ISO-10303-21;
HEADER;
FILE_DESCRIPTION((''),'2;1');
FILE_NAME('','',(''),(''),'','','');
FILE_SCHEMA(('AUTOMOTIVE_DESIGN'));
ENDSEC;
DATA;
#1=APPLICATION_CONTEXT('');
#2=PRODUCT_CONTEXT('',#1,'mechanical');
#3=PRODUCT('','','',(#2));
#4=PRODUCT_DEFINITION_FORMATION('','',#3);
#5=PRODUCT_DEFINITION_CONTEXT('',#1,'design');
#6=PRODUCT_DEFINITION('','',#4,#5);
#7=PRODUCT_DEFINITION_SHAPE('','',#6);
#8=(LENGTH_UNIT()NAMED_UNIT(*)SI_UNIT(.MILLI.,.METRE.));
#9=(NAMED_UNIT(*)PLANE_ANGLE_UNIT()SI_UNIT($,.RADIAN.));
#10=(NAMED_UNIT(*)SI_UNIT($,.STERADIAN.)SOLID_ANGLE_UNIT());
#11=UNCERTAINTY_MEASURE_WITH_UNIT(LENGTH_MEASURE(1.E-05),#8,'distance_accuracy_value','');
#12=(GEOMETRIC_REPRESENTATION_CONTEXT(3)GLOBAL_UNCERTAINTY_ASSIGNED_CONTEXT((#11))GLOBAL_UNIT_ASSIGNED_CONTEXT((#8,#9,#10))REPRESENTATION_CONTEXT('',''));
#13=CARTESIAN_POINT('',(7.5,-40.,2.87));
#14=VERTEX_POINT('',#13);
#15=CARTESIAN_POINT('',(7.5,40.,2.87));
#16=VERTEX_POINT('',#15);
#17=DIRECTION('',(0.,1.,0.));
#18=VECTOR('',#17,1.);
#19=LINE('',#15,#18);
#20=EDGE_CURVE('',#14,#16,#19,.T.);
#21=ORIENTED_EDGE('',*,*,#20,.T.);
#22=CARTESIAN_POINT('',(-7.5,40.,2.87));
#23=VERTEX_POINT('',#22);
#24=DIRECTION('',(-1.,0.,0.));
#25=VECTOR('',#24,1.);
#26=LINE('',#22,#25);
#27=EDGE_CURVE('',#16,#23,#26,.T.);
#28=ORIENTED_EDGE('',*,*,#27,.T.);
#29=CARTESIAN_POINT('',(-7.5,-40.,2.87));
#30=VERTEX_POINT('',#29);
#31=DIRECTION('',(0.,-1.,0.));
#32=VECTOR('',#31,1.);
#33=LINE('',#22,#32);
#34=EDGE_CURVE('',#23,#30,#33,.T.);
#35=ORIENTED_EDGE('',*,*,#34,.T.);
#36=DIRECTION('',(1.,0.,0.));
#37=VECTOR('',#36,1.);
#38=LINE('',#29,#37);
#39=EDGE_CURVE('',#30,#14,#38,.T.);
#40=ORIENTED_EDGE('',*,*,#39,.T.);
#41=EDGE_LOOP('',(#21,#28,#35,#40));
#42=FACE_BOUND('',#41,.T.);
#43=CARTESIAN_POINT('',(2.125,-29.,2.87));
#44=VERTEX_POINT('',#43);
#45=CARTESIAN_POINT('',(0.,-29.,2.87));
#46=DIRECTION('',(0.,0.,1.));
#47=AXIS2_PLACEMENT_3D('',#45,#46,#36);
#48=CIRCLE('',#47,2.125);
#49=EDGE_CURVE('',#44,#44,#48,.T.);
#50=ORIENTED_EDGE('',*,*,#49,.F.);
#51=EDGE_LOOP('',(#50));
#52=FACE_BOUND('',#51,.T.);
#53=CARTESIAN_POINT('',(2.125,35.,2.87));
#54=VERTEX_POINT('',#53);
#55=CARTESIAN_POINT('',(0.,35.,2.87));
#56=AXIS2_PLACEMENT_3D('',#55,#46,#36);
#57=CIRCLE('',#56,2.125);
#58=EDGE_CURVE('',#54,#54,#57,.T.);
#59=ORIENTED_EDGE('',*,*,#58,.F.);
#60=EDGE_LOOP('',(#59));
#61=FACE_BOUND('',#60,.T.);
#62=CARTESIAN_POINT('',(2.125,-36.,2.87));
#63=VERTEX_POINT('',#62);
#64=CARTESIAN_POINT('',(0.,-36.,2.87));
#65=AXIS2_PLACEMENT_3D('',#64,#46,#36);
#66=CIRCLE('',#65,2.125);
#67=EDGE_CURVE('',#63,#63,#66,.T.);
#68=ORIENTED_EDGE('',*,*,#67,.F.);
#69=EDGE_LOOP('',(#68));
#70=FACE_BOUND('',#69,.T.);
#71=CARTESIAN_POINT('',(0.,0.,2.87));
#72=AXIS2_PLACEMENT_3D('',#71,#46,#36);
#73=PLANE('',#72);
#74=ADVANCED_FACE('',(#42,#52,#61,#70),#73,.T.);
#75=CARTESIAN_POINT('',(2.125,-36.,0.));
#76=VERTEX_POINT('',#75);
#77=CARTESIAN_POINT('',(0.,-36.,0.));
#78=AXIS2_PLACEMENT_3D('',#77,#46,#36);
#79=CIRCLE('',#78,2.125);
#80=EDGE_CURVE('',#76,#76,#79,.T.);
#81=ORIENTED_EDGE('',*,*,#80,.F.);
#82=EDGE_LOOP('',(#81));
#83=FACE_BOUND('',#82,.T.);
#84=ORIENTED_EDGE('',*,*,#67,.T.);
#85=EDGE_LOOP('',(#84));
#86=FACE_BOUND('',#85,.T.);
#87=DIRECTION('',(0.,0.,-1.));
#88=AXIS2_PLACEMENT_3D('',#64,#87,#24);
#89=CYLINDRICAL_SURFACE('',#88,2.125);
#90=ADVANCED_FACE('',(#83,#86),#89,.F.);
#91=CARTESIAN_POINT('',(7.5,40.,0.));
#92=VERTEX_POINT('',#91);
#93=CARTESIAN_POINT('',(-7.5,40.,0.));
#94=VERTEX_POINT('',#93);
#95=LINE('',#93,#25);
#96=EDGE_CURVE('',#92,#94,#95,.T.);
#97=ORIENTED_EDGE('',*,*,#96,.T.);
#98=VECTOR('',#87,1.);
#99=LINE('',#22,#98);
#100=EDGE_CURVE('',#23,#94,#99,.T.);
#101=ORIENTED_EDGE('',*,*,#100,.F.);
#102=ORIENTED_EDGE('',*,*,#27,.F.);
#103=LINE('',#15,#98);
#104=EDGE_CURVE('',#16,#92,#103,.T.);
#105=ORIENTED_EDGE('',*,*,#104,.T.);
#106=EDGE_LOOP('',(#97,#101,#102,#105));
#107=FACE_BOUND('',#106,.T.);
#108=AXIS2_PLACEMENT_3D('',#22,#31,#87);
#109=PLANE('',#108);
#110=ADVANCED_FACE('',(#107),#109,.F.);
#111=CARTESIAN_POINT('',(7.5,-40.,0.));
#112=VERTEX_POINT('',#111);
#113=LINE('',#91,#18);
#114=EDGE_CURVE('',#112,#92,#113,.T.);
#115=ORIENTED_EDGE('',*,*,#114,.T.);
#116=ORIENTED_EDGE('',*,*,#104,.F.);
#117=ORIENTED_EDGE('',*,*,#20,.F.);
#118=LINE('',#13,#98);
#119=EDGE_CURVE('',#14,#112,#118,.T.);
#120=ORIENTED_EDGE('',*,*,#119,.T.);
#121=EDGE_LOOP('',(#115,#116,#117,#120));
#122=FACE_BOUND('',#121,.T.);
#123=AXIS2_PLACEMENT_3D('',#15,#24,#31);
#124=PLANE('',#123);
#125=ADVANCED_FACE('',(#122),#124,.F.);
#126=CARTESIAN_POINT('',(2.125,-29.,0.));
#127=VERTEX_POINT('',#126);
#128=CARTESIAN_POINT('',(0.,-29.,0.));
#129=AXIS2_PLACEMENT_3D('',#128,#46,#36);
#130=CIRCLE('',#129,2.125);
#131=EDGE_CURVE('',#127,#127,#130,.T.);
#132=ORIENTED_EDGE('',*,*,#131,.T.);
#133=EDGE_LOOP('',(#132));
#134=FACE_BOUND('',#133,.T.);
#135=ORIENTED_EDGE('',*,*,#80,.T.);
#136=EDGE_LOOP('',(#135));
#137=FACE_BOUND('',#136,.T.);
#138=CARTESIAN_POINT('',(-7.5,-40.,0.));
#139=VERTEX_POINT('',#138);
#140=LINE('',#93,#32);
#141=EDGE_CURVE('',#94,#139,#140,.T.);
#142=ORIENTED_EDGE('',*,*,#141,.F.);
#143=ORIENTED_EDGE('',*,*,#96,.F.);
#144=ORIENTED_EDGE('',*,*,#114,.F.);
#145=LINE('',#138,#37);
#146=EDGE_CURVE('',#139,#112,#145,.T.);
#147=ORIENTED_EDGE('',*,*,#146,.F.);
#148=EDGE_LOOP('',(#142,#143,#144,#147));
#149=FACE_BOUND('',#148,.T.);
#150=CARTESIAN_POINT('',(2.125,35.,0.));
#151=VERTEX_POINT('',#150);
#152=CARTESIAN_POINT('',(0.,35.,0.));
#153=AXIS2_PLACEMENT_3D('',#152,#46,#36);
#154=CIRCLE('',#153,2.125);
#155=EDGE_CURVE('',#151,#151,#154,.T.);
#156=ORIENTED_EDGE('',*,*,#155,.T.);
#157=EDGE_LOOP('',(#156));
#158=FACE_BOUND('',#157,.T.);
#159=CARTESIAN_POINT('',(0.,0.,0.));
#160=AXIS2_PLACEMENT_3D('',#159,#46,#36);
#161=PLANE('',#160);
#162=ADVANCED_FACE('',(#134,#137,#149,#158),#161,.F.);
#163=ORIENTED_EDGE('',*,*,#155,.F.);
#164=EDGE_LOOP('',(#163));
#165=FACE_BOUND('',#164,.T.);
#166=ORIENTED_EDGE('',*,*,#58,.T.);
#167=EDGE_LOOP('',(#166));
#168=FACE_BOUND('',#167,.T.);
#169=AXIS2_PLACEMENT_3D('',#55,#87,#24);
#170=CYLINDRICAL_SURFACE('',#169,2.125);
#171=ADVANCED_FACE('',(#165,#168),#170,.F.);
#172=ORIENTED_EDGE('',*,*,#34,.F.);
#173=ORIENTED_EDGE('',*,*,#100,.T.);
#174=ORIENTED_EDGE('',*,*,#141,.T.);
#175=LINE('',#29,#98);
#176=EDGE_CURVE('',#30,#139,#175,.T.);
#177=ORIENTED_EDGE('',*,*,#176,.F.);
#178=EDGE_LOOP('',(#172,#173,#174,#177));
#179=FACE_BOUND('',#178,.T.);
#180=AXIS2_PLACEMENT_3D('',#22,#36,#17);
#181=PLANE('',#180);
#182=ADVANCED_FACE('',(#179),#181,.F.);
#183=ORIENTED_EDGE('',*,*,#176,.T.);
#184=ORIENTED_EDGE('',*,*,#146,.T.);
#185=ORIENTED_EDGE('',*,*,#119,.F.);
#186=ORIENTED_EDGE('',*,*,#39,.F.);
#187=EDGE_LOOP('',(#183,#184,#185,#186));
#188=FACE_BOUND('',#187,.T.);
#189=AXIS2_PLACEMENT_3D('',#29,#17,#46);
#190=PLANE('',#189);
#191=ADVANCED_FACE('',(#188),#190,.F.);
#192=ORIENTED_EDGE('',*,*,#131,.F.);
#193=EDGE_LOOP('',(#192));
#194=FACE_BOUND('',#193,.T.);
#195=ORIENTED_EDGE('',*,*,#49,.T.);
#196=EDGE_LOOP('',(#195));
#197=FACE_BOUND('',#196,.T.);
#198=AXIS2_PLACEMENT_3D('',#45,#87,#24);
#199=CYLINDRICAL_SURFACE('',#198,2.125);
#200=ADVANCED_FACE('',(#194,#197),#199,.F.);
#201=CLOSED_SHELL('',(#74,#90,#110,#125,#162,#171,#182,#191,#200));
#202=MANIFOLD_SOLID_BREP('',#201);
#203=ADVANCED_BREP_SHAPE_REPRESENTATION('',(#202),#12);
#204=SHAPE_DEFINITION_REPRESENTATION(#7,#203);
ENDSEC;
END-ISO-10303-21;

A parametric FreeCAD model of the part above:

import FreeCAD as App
import Part
import Sketcher

V = App.Vector

doc = App.newDocument("Part")
body = doc.addObject("PartDesign::Body", "Body")

# Sketch on XY plane
sketch1 = body.newObject("Sketcher::SketchObject", "Sketch")
sketch1.AttachmentSupport = (doc.getObject("XY_Plane"), [""])
sketch1.MapMode = "FlatFace"
sketch1.addGeometry([
    Part.LineSegment(V(-7.5, 40, 0), V(-7.5, -40, 0)),  # 0
    Part.LineSegment(V(-7.5, -40, 0), V(7.5, -40, 0)),  # 1
    Part.LineSegment(V(7.5, -40, 0), V(7.5, 40, 0)),  # 2
    Part.LineSegment(V(7.5, 40, 0), V(-7.5, 40, 0)),  # 3
    Part.Circle(V(0, -36, 0), V(0, 0, 1), 2.1),  # 4
    Part.Circle(V(0, -29, 0), V(0, 0, 1), 2.1),  # 5
    Part.Circle(V(0, 35, 0), V(0, 0, 1), 2.1),  # 6
], False)
sketch1.addConstraint([
    Sketcher.Constraint("Coincident", 0, 2, 1, 1),
    Sketcher.Constraint("Coincident", 1, 2, 2, 1),
    Sketcher.Constraint("Coincident", 2, 2, 3, 1),
    Sketcher.Constraint("Coincident", 3, 2, 0, 1),
    Sketcher.Constraint("Vertical", 0),
    Sketcher.Constraint("Horizontal", 1),
    Sketcher.Constraint("Vertical", 2),
    Sketcher.Constraint("Horizontal", 3),
    Sketcher.Constraint("Equal", 4, 5),
    Sketcher.Constraint("Equal", 5, 6),
    Sketcher.Constraint("Symmetric", 0, 2, 2, 2, -1, 1),
    Sketcher.Constraint("PointOnObject", 4, 3, -2),
    Sketcher.Constraint("PointOnObject", 5, 3, -2),
    Sketcher.Constraint("PointOnObject", 6, 3, -2),
    Sketcher.Constraint("Diameter", 4, 4.25),
    Sketcher.Constraint("DistanceX", 1, 1, 1, 2, 15.0),
    Sketcher.Constraint("DistanceY", 0, 2, 0, 1, 80.0),
    Sketcher.Constraint("DistanceY", 4, 3, -1, 1, 36.0),
    Sketcher.Constraint("DistanceY", 5, 3, -1, 1, 29.0),
    Sketcher.Constraint("DistanceY", -1, 1, 6, 3, 35.0),
])
pad1 = body.newObject("PartDesign::Pad", "Pad")
pad1.Profile = sketch1
pad1.Length = 2.87

doc.recompute()
